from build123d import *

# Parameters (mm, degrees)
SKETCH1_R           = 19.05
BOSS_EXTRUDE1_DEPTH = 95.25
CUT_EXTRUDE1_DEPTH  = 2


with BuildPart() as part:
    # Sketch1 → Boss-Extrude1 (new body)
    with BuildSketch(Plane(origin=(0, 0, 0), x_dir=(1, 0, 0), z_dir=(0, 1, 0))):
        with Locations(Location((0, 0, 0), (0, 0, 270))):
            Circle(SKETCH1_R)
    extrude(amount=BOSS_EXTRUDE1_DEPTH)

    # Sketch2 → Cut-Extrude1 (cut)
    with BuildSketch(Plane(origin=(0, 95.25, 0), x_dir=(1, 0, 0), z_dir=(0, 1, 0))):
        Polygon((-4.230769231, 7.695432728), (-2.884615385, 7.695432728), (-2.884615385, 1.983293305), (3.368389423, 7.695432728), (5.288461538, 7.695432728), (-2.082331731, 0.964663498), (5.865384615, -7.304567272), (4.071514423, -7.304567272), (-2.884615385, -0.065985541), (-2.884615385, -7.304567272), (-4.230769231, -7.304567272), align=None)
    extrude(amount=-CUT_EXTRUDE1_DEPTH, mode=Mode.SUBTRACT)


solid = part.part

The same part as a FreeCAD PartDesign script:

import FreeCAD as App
import Part
import Sketcher
from FreeCAD import Vector
Q = App.Units.Quantity

doc = App.newDocument("Part")
body = doc.addObject("PartDesign::Body", "Body")

# Sketch on XZ plane
sketch1 = body.newObject("Sketcher::SketchObject", "Sketch")
sketch1.AttachmentSupport = (doc.getObject("XZ_Plane"), [""])
sketch1.MapMode = "FlatFace"
sketch1.addGeometry(Part.Circle(Vector(0, 0, 0), Vector(0, 0, 1), 19.05), False)
sketch1.addConstraint(Sketcher.Constraint("Coincident", 0, 3, -1, 1))
sketch1.addConstraint(Sketcher.Constraint("Diameter", 0, Q("38.1 mm")))
pad1 = body.newObject("PartDesign::Pad", "Pad")
pad1.Profile = sketch1
pad1.Length = 95.25
pad1.Reversed = True

# Sketch on XZ plane
sketch2 = body.newObject("Sketcher::SketchObject", "Sketch001")
sketch2.AttachmentSupport = (doc.getObject("XZ_Plane"), [""])
sketch2.MapMode = "FlatFace"
sketch2.AttachmentOffset = App.Placement(Vector(0, 0, -95.25), App.Rotation())
sketch2.addGeometry(Part.LineSegment(Vector(-2.884615, -7.695433, 0), Vector(-4.230769, -7.695433, 0)), False)
sketch2.addGeometry(Part.LineSegment(Vector(-4.230769, -7.695433, 0), Vector(-4.230769, 7.304567, 0)), False)
sketch2.addGeometry(Part.LineSegment(Vector(-4.230769, 7.304567, 0), Vector(-2.884615, 7.304567, 0)), False)
sketch2.addGeometry(Part.LineSegment(Vector(-2.884615, 7.304567, 0), Vector(-2.884615, 0.065986, 0)), False)
sketch2.addGeometry(Part.LineSegment(Vector(-2.884615, 0.065986, 0), Vector(4.071514, 7.304567, 0)), False)
sketch2.addGeometry(Part.LineSegment(Vector(4.071514, 7.304567, 0), Vector(5.865385, 7.304567, 0)), False)
sketch2.addGeometry(Part.LineSegment(Vector(5.865385, 7.304567, 0), Vector(-2.082332, -0.964663, 0)), False)
sketch2.addGeometry(Part.LineSegment(Vector(-2.082332, -0.964663, 0), Vector(5.288462, -7.695433, 0)), False)
sketch2.addGeometry(Part.LineSegment(Vector(5.288462, -7.695433, 0), Vector(3.368389, -7.695433, 0)), False)
sketch2.addGeometry(Part.LineSegment(Vector(3.368389, -7.695433, 0), Vector(-2.884615, -1.983293, 0)), False)
sketch2.addGeometry(Part.LineSegment(Vector(-2.884615, -1.983293, 0), Vector(-2.884615, -7.695433, 0)), False)
sketch2.addConstraint(Sketcher.Constraint("Coincident", 0, 2, 1, 1))
sketch2.addConstraint(Sketcher.Constraint("Coincident", 1, 2, 2, 1))
sketch2.addConstraint(Sketcher.Constraint("Coincident", 2, 2, 3, 1))
sketch2.addConstraint(Sketcher.Constraint("Coincident", 3, 2, 4, 1))
sketch2.addConstraint(Sketcher.Constraint("Coincident", 4, 2, 5, 1))
sketch2.addConstraint(Sketcher.Constraint("Coincident", 5, 2, 6, 1))
sketch2.addConstraint(Sketcher.Constraint("Coincident", 6, 2, 7, 1))
sketch2.addConstraint(Sketcher.Constraint("Coincident", 7, 2, 8, 1))
sketch2.addConstraint(Sketcher.Constraint("Coincident", 8, 2, 9, 1))
sketch2.addConstraint(Sketcher.Constraint("Coincident", 9, 2, 10, 1))
sketch2.addConstraint(Sketcher.Constraint("Coincident", 10, 2, 0, 1))
sketch2.addConstraint(Sketcher.Constraint("Horizontal", 0))
sketch2.addConstraint(Sketcher.Constraint("Vertical", 1))
sketch2.addConstraint(Sketcher.Constraint("Horizontal", 2))
sketch2.addConstraint(Sketcher.Constraint("Vertical", 3))
sketch2.addConstraint(Sketcher.Constraint("Horizontal", 5))
sketch2.addConstraint(Sketcher.Constraint("Horizontal", 8))
sketch2.addConstraint(Sketcher.Constraint("Vertical", 10))
sketch2.addConstraint(Sketcher.Constraint("Horizontal", 2, 2, 4, 2))
sketch2.addConstraint(Sketcher.Constraint("Horizontal", 0, 2, 7, 2))
sketch2.addConstraint(Sketcher.Constraint("Vertical", 3, 2, 9, 2))
sketch2.addConstraint(Sketcher.Constraint("DistanceY", 1, 1, 1, 2, Q("15 mm")))
sketch2.addConstraint(Sketcher.Constraint("DistanceX", 2, 2, 5, 2, Q("8.75 mm")))
sketch2.addConstraint(Sketcher.Constraint("DistanceX", 5, 1, 5, 2, Q("1.79387 mm")))
sketch2.addConstraint(Sketcher.Constraint("DistanceY", 3, 2, 3, 1, Q("7.238582 mm")))
sketch2.addConstraint(Sketcher.Constraint("DistanceY", 10, 2, 10, 1, Q("5.712139 mm")))
sketch2.addConstraint(Sketcher.Constraint("DistanceX", 0, 2, 0, 1, Q("1.346154 mm")))
sketch2.addConstraint(Sketcher.Constraint("DistanceX", 8, 2, 8, 1, Q("1.920072 mm")))
sketch2.addConstraint(Sketcher.Constraint("DistanceX", 0, 2, -1, 1, Q("4.230769 mm")))
sketch2.addConstraint(Sketcher.Constraint("DistanceX", 6, 2, -1, 1, Q("2.082332 mm")))
sketch2.addConstraint(Sketcher.Constraint("DistanceX", -1, 1, 7, 2, Q("5.288462 mm")))
sketch2.addConstraint(Sketcher.Constraint("DistanceY", 6, 2, 3, 2, Q("1.030649 mm")))
sketch2.addConstraint(Sketcher.Constraint("DistanceY", 0, 2, -1, 1, Q("7.695433 mm")))
pocket1 = body.newObject("PartDesign::Pocket", "Pocket")
pocket1.Profile = sketch2
pocket1.Length = 2
pocket1.Reversed = True

doc.recompute()
